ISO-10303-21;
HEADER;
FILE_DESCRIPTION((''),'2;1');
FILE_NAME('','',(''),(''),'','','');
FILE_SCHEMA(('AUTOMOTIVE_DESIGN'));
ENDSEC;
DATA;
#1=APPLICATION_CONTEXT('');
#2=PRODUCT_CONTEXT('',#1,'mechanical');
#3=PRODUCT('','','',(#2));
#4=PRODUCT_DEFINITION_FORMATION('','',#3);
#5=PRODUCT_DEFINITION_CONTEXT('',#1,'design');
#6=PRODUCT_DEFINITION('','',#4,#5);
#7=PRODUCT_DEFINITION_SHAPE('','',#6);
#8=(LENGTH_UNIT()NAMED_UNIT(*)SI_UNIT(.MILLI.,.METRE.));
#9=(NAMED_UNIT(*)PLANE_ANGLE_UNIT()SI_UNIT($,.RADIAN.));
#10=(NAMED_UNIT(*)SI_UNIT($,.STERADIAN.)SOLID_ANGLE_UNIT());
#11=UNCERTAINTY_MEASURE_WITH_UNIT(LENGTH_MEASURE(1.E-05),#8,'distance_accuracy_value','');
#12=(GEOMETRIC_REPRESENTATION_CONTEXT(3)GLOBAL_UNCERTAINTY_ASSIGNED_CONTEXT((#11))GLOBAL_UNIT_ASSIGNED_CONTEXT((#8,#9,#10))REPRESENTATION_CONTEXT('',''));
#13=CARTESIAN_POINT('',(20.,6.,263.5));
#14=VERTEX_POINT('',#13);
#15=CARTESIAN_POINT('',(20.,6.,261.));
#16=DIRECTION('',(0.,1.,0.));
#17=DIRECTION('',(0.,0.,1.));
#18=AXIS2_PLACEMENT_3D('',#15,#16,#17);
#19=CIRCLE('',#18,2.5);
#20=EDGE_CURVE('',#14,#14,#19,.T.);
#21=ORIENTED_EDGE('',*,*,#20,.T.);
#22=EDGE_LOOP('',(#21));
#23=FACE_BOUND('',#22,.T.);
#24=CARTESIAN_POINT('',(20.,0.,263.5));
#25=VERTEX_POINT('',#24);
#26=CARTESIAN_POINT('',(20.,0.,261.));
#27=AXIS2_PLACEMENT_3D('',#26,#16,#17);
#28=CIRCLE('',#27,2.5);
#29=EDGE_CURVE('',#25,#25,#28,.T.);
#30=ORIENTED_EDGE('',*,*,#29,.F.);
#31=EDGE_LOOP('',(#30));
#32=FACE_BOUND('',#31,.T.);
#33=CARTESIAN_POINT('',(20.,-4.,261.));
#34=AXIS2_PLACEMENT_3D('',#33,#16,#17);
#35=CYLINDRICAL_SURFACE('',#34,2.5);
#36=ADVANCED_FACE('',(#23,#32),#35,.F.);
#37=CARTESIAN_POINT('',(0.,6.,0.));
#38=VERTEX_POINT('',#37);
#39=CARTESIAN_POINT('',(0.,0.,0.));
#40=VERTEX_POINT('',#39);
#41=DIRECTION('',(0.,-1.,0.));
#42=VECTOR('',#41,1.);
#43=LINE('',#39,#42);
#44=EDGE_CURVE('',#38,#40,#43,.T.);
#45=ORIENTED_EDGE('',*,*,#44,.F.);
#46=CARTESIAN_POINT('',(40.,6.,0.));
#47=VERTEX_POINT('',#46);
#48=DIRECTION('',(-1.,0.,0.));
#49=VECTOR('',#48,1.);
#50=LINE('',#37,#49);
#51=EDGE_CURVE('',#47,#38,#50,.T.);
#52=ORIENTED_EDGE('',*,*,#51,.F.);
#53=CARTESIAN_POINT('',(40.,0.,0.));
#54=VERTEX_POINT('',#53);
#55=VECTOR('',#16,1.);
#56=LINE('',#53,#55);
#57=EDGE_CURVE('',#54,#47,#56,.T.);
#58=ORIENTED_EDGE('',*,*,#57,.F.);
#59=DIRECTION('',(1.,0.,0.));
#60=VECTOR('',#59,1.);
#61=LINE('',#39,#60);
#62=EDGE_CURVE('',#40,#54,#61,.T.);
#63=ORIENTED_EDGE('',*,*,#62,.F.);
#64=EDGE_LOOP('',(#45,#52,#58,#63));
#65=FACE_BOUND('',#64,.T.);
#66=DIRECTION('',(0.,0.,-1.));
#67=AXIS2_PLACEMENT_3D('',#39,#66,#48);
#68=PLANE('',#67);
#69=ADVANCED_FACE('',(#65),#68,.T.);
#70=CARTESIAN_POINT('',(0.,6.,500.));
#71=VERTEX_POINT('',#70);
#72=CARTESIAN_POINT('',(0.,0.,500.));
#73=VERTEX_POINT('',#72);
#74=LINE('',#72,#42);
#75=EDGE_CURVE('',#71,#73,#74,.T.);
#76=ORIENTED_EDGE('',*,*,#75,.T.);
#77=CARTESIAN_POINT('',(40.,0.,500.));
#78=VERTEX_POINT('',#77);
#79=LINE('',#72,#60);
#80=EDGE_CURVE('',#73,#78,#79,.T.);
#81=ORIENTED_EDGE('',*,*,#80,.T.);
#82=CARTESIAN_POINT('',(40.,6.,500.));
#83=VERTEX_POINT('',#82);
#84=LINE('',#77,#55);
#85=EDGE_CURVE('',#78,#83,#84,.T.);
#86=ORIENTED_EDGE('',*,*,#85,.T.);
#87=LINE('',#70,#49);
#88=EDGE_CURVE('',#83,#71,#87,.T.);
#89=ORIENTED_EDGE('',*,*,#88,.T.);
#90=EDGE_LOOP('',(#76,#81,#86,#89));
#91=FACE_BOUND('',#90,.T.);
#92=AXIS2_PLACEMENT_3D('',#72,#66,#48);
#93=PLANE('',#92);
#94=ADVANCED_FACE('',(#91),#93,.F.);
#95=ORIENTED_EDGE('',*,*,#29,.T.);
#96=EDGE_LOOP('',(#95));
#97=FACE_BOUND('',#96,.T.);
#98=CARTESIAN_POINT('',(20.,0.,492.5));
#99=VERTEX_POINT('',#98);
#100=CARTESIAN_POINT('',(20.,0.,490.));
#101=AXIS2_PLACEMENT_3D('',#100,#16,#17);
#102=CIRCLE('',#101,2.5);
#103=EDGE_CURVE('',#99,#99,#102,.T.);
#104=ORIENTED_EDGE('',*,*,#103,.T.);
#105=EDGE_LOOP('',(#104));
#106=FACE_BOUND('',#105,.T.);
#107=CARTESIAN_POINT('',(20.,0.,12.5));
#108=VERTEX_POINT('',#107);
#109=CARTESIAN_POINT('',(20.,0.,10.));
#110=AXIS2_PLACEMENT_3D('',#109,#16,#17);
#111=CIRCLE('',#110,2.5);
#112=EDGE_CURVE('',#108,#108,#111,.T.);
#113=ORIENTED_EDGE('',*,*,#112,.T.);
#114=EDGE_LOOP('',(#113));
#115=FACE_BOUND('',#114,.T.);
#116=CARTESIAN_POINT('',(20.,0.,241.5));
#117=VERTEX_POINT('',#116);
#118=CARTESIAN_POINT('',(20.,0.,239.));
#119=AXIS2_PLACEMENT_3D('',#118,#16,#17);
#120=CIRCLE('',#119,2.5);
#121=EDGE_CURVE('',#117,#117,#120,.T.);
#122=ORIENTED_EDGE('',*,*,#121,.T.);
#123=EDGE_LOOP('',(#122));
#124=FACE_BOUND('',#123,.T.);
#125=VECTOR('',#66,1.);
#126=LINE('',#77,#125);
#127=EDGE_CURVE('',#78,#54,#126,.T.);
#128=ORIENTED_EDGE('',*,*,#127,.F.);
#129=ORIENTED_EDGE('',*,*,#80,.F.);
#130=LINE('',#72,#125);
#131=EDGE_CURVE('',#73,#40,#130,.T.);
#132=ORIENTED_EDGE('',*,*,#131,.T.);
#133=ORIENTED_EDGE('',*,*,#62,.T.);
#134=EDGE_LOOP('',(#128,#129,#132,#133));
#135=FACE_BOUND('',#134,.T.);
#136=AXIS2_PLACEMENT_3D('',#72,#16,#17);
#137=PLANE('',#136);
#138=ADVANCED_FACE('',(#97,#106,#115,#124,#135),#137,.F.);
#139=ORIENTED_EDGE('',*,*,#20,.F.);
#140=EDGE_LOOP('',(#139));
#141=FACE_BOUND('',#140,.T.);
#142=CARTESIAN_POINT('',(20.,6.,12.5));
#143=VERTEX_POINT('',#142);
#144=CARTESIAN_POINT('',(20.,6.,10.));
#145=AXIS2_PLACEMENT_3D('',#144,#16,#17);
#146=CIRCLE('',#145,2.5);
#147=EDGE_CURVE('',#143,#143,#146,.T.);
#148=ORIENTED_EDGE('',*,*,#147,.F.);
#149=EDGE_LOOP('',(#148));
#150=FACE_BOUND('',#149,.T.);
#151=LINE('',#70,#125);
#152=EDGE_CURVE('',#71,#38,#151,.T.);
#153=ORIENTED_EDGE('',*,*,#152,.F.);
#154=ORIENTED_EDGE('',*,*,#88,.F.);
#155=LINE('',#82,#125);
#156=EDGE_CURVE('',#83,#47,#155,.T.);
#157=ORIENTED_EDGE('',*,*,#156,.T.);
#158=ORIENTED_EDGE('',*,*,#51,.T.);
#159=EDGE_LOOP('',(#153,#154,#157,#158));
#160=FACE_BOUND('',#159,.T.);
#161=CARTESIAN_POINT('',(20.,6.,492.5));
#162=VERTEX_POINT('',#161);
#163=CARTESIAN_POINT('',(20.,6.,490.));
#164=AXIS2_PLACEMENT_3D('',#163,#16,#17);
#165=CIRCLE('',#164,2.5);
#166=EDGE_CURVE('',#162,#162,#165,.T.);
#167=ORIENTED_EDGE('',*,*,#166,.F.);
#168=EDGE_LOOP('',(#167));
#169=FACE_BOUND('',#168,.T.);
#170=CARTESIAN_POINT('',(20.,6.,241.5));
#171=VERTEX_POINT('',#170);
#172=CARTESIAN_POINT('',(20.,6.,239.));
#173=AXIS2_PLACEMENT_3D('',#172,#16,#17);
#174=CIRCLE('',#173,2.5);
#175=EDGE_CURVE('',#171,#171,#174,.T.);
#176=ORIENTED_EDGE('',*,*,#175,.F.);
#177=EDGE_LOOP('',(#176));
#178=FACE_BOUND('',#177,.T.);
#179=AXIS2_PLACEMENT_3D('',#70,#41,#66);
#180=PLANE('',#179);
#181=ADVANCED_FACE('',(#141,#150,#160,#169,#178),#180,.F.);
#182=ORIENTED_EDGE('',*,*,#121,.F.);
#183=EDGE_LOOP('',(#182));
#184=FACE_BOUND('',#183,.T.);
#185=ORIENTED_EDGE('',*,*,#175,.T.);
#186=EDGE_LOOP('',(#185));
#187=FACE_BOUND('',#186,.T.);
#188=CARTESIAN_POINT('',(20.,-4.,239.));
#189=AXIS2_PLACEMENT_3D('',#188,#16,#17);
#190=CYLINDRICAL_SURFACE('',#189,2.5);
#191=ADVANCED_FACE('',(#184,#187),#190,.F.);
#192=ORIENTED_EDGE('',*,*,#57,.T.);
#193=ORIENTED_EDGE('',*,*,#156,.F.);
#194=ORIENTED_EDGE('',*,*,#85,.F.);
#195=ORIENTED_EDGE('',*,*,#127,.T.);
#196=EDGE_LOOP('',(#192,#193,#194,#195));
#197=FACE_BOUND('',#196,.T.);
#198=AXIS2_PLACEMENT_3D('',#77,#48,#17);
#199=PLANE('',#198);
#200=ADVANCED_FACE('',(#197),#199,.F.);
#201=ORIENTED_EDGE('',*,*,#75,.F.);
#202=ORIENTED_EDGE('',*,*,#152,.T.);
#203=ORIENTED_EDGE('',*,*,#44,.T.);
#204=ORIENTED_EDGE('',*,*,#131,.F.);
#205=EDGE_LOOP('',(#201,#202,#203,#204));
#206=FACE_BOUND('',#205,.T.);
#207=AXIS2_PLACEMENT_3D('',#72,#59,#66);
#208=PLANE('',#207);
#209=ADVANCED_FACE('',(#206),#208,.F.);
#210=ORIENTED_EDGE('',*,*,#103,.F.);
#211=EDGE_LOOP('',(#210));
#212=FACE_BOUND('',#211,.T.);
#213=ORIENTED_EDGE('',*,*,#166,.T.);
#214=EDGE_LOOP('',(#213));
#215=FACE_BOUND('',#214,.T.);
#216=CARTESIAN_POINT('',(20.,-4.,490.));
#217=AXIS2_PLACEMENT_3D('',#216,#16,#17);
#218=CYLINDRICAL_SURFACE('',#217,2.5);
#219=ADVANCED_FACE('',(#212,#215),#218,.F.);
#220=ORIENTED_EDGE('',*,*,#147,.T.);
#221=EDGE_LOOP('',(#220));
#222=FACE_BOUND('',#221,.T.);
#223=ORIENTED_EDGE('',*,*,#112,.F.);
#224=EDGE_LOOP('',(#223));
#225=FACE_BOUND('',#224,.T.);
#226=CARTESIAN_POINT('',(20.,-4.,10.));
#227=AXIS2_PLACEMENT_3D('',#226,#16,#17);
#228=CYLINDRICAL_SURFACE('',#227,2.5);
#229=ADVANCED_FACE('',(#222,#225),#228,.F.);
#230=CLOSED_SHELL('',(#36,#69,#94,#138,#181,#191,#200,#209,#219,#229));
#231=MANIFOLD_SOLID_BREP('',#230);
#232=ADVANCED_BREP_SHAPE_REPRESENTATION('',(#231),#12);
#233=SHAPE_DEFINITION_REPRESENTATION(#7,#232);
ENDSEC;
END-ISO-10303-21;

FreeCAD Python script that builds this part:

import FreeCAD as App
import Part
import Sketcher

V = App.Vector
Q = App.Units.Quantity

doc = App.newDocument("Part")
body = doc.addObject("PartDesign::Body", "Body")

sketch1 = body.newObject("Sketcher::SketchObject", "Sketch")
sketch1.AttachmentSupport = (doc.getObject("XY_Plane"), [""])
sketch1.MapMode = "FlatFace"
sketch1.addGeometry([
    Part.LineSegment(V(0, 6, 0), V(0, 0, 0)),
    Part.LineSegment(V(0, 0, 0), V(40, 0, 0)),
    Part.LineSegment(V(40, 0, 0), V(40, 6, 0)),
    Part.LineSegment(V(40, 6, 0), V(0, 6, 0)),
], False)
sketch1.addConstraint([
    Sketcher.Constraint("Coincident", 0, 2, 1, 1),
    Sketcher.Constraint("Coincident", 1, 2, 2, 1),
    Sketcher.Constraint("Coincident", 2, 2, 3, 1),
    Sketcher.Constraint("Coincident", 3, 2, 0, 1),
    Sketcher.Constraint("Vertical", 0),
    Sketcher.Constraint("Horizontal", 1),
    Sketcher.Constraint("Vertical", 2),
    Sketcher.Constraint("Horizontal", 3),
    Sketcher.Constraint("Coincident", 0, 2, -1, 1),
    Sketcher.Constraint("DistanceX", 1, 1, 1, 2, Q("40 mm")),
    Sketcher.Constraint("DistanceY", 0, 2, 0, 1, Q("6 mm")),
])
pad1 = body.newObject("PartDesign::Pad", "Pad")
pad1.Profile = sketch1
pad1.Length = 500

sketch2 = body.newObject("Sketcher::SketchObject", "Sketch001")
sketch2.AttachmentSupport = (doc.getObject("XZ_Plane"), [""])
sketch2.MapMode = "FlatFace"
sketch2.AttachmentOffset = App.Placement(V(0, 0, -6), App.Rotation())
sketch2.addGeometry(Part.Circle(V(20, 10, 0), V(0, 0, 1), 2.5), False)
sketch2.addConstraint([
    Sketcher.Constraint("Diameter", 0, Q("5 mm")),
    Sketcher.Constraint("DistanceX", -1, 1, 0, 3, Q("20 mm")),
    Sketcher.Constraint("DistanceY", -1, 1, 0, 3, Q("10 mm")),
])
pocket1 = body.newObject("PartDesign::Pocket", "Pocket")
pocket1.Profile = sketch2
pocket1.Length = 10
pocket1.Reversed = True
doc.recompute()

linearpattern = body.newObject("PartDesign::LinearPattern", "LinearPattern")
linearpattern.Originals = [pocket1]
linearpattern.Direction = (doc.getObject("Z_Axis"), [""])
linearpattern.Mode = "offset"
linearpattern.Offset = 480
linearpattern.Occurrences = 2
body.Tip = linearpattern

sketch3 = body.newObject("Sketcher::SketchObject", "Sketch002")
sketch3.AttachmentSupport = (doc.getObject("XZ_Plane"), [""])
sketch3.MapMode = "FlatFace"
sketch3.AttachmentOffset = App.Placement(V(0, 0, -6), App.Rotation())
sketch3.addGeometry(Part.Circle(V(20, 239, 0), V(0, 0, 1), 2.5), False)
sketch3.addConstraint([
    Sketcher.Constraint("Diameter", 0, Q("5 mm")),
    Sketcher.Constraint("DistanceX", -1, 1, 0, 3, Q("20 mm")),
    Sketcher.Constraint("DistanceY", -1, 1, 0, 3, Q("239 mm")),
])
pocket2 = body.newObject("PartDesign::Pocket", "Pocket001")
pocket2.Profile = sketch3
pocket2.Length = 10
pocket2.Reversed = True
doc.recompute()

linearpattern2 = body.newObject("PartDesign::LinearPattern", "LinearPattern001")
linearpattern2.Originals = [pocket2]
linearpattern2.Direction = (doc.getObject("Z_Axis"), [""])
linearpattern2.Mode = "offset"
linearpattern2.Offset = 22
linearpattern2.Occurrences = 2
body.Tip = linearpattern2

doc.recompute()
